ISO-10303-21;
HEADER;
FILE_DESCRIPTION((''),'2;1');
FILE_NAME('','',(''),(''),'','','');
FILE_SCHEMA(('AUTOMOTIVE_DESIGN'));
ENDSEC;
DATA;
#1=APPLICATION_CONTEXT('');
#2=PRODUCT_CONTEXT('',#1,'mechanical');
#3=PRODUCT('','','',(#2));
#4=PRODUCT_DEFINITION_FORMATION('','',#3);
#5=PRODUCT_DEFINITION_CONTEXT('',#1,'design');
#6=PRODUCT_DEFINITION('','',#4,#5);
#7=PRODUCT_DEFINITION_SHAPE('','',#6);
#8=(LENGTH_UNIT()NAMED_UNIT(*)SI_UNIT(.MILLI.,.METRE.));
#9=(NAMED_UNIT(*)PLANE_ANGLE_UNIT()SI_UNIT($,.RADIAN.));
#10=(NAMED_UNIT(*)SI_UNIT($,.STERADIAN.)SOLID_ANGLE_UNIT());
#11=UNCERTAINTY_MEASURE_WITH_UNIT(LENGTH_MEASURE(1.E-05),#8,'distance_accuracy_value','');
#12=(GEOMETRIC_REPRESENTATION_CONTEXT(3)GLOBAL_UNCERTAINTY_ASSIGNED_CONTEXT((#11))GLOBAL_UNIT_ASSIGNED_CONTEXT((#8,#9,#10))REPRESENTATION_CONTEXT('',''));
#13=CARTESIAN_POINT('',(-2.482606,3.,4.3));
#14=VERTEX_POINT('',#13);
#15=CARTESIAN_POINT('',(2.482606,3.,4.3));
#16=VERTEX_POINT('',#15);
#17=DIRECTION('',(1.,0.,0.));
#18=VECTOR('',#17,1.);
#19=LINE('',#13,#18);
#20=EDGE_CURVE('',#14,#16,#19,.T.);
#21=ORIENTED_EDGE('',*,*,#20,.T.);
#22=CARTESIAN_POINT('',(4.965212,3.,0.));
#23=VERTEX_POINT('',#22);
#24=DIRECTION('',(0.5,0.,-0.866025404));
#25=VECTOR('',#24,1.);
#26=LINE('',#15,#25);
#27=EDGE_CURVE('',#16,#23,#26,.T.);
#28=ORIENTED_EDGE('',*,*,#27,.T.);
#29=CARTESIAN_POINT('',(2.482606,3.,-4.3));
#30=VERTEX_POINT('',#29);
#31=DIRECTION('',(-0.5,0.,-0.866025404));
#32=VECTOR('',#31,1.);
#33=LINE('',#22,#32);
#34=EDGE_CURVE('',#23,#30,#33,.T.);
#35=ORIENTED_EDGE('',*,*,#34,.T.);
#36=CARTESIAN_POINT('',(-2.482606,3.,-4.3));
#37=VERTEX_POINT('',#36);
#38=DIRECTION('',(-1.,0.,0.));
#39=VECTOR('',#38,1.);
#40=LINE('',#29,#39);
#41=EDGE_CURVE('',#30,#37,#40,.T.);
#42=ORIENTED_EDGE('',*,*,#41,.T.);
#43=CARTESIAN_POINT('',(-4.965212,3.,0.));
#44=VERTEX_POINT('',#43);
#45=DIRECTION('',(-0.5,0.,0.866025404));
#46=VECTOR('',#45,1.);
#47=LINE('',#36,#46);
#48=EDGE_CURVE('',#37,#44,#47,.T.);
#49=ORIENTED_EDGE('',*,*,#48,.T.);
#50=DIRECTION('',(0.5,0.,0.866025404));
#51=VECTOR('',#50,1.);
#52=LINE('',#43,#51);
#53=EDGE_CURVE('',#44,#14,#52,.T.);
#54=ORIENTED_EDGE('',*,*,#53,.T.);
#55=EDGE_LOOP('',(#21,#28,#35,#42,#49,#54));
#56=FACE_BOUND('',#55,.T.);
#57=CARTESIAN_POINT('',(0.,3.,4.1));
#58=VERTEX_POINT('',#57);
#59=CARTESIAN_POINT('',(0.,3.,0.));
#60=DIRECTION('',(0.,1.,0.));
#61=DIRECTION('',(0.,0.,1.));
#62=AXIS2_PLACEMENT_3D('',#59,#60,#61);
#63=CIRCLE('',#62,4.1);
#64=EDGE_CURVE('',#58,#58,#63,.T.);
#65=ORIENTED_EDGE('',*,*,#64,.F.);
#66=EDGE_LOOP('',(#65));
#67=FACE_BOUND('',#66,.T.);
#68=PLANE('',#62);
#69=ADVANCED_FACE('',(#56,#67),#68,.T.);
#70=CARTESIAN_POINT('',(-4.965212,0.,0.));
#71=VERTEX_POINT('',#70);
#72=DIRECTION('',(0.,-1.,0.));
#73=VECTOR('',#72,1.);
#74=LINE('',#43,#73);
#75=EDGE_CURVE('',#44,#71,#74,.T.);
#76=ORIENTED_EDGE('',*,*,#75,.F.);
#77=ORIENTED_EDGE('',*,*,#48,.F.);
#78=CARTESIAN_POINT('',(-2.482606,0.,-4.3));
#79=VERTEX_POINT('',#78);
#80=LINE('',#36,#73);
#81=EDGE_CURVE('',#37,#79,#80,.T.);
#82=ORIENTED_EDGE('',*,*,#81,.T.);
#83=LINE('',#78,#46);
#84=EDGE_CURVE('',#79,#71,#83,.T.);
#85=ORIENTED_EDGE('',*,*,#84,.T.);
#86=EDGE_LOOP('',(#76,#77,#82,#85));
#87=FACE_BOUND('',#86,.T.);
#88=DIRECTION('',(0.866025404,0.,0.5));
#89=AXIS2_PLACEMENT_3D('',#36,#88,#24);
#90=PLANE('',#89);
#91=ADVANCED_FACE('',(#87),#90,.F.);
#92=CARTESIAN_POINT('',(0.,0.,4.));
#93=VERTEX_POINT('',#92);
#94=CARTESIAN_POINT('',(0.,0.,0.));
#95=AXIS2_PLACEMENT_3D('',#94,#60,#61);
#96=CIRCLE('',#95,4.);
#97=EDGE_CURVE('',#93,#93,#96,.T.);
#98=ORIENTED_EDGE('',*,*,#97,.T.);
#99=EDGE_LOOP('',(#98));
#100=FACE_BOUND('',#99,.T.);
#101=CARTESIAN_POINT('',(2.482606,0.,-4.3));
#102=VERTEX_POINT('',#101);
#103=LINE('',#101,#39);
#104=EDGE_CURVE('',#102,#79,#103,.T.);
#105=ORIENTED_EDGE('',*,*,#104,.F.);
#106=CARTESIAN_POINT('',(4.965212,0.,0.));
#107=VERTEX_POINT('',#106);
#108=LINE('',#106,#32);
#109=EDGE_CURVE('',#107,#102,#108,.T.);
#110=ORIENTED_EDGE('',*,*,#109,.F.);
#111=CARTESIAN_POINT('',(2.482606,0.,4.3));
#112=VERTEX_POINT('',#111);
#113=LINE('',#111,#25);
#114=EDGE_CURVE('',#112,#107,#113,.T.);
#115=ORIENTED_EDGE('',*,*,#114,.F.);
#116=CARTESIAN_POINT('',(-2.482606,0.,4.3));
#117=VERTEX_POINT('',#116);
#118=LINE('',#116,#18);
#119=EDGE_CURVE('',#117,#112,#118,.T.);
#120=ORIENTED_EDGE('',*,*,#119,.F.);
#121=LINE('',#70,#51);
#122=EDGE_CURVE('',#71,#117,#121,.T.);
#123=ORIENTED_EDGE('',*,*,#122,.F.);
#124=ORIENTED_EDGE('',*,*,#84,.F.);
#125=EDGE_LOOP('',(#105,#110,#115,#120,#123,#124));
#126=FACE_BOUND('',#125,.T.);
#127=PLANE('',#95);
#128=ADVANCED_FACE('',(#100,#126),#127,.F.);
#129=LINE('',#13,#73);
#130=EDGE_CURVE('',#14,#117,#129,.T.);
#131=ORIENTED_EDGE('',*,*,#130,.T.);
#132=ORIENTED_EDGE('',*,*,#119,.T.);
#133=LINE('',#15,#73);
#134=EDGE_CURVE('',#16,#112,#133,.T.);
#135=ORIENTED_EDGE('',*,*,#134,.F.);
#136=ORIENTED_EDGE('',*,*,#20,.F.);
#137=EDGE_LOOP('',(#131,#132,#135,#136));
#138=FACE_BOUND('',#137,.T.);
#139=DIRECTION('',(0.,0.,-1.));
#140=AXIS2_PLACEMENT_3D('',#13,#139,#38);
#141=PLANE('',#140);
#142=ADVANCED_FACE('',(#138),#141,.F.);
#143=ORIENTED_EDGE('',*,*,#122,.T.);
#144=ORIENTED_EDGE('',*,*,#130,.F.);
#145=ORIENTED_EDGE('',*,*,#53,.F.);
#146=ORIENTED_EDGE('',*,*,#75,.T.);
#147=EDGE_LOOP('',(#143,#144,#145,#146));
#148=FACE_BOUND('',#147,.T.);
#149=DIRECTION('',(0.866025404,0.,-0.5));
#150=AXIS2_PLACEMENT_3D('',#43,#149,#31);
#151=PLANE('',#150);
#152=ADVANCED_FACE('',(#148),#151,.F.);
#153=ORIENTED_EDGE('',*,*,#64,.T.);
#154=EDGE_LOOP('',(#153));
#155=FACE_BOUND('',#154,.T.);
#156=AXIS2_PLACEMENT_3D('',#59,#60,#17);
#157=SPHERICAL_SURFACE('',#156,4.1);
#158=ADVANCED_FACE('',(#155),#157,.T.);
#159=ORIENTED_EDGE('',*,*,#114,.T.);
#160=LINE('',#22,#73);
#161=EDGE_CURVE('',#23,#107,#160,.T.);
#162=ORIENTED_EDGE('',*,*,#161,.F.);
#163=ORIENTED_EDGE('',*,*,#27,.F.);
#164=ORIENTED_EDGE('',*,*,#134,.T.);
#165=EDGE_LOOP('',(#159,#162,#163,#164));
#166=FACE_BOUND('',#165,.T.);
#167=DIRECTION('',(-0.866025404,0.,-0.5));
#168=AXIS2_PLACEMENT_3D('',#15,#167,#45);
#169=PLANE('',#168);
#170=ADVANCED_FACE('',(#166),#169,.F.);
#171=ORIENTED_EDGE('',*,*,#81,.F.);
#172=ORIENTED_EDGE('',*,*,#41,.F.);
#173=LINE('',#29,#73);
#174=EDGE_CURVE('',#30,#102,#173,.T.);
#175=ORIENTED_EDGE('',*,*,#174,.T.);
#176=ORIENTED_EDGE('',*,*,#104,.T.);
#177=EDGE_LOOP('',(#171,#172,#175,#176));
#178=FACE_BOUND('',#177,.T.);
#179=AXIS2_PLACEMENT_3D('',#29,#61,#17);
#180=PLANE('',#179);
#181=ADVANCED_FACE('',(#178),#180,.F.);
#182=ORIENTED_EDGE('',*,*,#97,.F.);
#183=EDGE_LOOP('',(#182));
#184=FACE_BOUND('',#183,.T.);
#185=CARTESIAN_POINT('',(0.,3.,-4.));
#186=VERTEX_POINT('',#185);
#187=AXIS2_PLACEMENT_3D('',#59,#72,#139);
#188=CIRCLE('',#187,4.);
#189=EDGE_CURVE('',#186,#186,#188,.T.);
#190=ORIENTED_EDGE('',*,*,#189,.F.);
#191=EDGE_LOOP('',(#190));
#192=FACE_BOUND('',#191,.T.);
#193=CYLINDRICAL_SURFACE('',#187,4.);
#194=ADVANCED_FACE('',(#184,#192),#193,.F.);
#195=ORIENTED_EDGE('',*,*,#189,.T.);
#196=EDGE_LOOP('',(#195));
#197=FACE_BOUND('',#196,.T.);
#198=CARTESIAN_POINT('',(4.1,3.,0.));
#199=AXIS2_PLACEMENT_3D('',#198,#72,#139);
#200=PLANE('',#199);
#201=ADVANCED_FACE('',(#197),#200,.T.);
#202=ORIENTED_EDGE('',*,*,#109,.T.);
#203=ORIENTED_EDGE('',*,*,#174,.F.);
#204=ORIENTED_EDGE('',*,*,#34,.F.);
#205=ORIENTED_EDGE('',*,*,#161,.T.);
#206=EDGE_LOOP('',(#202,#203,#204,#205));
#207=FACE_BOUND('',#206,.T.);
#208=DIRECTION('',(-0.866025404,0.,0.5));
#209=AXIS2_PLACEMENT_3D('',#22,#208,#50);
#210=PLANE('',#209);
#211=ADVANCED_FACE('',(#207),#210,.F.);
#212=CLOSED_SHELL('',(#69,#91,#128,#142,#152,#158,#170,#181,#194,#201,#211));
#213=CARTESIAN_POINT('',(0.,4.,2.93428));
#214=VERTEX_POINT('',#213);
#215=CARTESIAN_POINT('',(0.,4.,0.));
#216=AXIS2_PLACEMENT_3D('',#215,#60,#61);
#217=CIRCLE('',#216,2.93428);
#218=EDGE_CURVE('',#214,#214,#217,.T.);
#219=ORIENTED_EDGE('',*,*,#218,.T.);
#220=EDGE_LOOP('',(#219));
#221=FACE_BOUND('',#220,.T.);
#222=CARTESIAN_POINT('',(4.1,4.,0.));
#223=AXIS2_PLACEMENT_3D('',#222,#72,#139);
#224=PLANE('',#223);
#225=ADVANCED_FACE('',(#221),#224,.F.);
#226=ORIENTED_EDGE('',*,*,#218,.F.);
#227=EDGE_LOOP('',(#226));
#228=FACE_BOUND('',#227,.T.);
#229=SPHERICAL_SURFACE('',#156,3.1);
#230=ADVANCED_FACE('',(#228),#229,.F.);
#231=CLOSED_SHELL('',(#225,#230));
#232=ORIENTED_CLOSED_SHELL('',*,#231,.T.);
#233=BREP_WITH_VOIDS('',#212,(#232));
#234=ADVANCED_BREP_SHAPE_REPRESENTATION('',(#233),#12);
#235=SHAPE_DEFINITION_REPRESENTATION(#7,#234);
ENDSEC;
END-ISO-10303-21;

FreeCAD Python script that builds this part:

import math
import FreeCAD as App
import Part
import Sketcher
from FreeCAD import Vector
Q = App.Units.Quantity

doc = App.newDocument("Part")
body = doc.addObject("PartDesign::Body", "Body")

# Sketch on XZ plane
sketch1 = body.newObject("Sketcher::SketchObject", "Sketch")
sketch1.AttachmentSupport = (doc.getObject("XZ_Plane"), [""])
sketch1.MapMode = "FlatFace"
sketch1.addGeometry([
    Part.LineSegment(Vector(4.965212, 0, 0), Vector(2.482606, -4.3, 0)),  # 0
    Part.LineSegment(Vector(2.482606, -4.3, 0), Vector(-2.482606, -4.3, 0)),  # 1
    Part.LineSegment(Vector(-2.482606, -4.3, 0), Vector(-4.965212, 0, 0)),  # 2
    Part.LineSegment(Vector(-4.965212, 0, 0), Vector(-2.482606, 4.3, 0)),  # 3
    Part.LineSegment(Vector(-2.482606, 4.3, 0), Vector(2.482606, 4.3, 0)),  # 4
    Part.LineSegment(Vector(2.482606, 4.3, 0), Vector(4.965212, 0, 0)),  # 5
    Part.Circle(Vector(0, 0, 0), Vector(0, 0, 1), 4),  # 6
], False)
sketch1.addConstraint([
    Sketcher.Constraint("Coincident", 0, 2, 1, 1),
    Sketcher.Constraint("Coincident", 1, 2, 2, 1),
    Sketcher.Constraint("Coincident", 2, 2, 3, 1),
    Sketcher.Constraint("Coincident", 3, 2, 4, 1),
    Sketcher.Constraint("Coincident", 4, 2, 5, 1),
    Sketcher.Constraint("Coincident", 5, 2, 0, 1),
    Sketcher.Constraint("Horizontal", 1),
    Sketcher.Constraint("Horizontal", 4),
    Sketcher.Constraint("Coincident", 6, 3, -1, 1),
    Sketcher.Constraint("Symmetric", 0, 2, 3, 2, -1, 1),
    Sketcher.Constraint("Symmetric", 2, 2, 5, 2, -1, 1),
    Sketcher.Constraint("PointOnObject", 2, 2, -1),
    Sketcher.Constraint("Parallel", 2, 5),
    Sketcher.Constraint("Vertical", 1, 2, 3, 2),
    Sketcher.Constraint("Diameter", 6, 8.0),
    Sketcher.Constraint("Angle", 0, Q("-120 deg")),
    Sketcher.Constraint("DistanceY", 0, 2, -1, 1, 4.3),
    Sketcher.Constraint("DistanceX", 1, 2, 1, 1, 4.965212),
])
pad1 = body.newObject("PartDesign::Pad", "Pad")
pad1.Profile = sketch1
pad1.Length = 3
pad1.Reversed = True

# Sketch on XY plane
sketch2 = body.newObject("Sketcher::SketchObject", "Sketch001")
sketch2.AttachmentSupport = (doc.getObject("XY_Plane"), [""])
sketch2.MapMode = "FlatFace"
sketch2.addGeometry([
    Part.ArcOfCircle(Part.Circle(Vector(0, 3, 0), Vector(0, 0, 1), 4.1), math.radians(0), math.radians(90)),  # 0
    Part.LineSegment(Vector(0, 7.1, 0), Vector(0, 6.1, 0)),  # 1
    Part.ArcOfCircle(Part.Circle(Vector(0, 3, 0), Vector(0, 0, 1), 3.1), math.radians(18.819063), math.radians(90)),  # 2
    Part.LineSegment(Vector(2.93428, 4, 0), Vector(0, 4, 0)),  # 3
    Part.LineSegment(Vector(0, 4, 0), Vector(0, 3, 0)),  # 4
    Part.LineSegment(Vector(0, 3, 0), Vector(4.1, 3, 0)),  # 5
], False)
sketch2.addConstraint([
    Sketcher.Constraint("Coincident", 0, 2, 1, 1),
    Sketcher.Constraint("Coincident", 1, 2, 2, 2),
    Sketcher.Constraint("Coincident", 2, 1, 3, 1),
    Sketcher.Constraint("Coincident", 3, 2, 4, 1),
    Sketcher.Constraint("Coincident", 4, 2, 5, 1),
    Sketcher.Constraint("Coincident", 5, 2, 0, 1),
    Sketcher.Constraint("Vertical", 1),
    Sketcher.Constraint("Horizontal", 3),
    Sketcher.Constraint("Vertical", 4),
    Sketcher.Constraint("Horizontal", 5),
    Sketcher.Constraint("Coincident", 2, 3, 0, 3),
    Sketcher.Constraint("Coincident", 4, 2, 0, 3),
    Sketcher.Constraint("PointOnObject", 0, 3, -2),
    Sketcher.Constraint("PointOnObject", 0, 2, -2),
    Sketcher.Constraint("Equal", 1, 4),
    Sketcher.Constraint("Radius", 0, 4.1),
    Sketcher.Constraint("Radius", 2, 3.1),
    Sketcher.Constraint("DistanceY", -1, 1, 0, 3, 3.0),
])
revolution = body.newObject("PartDesign::Revolution", "Revolution")
revolution.Profile = sketch2
revolution.ReferenceAxis = (sketch2, ["V_Axis"])
revolution.Angle = 360

doc.recompute()
